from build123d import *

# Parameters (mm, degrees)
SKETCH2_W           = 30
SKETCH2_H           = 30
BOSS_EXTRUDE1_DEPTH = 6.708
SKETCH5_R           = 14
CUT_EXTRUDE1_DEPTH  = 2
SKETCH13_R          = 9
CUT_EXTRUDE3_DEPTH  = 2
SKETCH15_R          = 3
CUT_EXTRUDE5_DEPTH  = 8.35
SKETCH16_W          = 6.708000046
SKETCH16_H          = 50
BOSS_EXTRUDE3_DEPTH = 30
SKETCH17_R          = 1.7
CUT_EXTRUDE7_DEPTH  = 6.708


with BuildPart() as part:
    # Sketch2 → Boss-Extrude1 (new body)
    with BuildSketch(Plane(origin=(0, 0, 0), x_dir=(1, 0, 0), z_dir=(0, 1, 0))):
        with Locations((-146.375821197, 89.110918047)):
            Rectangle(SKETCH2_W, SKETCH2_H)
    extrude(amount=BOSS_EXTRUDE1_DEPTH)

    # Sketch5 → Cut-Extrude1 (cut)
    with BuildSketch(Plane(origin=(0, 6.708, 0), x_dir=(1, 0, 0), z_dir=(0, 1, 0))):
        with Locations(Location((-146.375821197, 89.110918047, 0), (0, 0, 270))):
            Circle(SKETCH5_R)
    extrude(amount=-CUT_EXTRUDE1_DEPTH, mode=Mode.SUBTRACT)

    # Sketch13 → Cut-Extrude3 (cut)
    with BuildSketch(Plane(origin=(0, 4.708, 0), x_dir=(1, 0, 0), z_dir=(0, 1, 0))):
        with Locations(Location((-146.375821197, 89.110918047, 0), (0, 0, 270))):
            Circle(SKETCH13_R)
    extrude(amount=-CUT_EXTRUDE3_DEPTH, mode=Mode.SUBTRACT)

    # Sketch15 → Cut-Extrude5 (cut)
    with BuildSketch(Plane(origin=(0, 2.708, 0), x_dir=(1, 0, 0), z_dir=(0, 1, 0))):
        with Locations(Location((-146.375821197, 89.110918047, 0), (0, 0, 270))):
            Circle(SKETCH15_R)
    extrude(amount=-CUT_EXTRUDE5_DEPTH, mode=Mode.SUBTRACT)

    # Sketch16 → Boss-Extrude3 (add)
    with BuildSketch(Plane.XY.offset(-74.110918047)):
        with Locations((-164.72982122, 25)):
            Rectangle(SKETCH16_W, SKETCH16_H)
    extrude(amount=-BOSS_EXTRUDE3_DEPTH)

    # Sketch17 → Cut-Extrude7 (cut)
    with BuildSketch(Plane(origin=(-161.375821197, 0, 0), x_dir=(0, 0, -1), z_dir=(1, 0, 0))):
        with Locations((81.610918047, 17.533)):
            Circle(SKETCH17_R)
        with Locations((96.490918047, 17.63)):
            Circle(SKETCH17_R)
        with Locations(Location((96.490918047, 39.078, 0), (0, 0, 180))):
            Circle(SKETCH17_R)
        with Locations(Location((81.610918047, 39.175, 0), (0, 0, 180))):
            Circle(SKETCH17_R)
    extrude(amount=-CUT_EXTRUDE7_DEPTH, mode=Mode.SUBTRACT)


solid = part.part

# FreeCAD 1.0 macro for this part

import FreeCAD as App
import Part
import Sketcher
from FreeCAD import Vector

doc = App.newDocument("Part")
params = doc.addObject("Spreadsheet::Sheet", "Params")
for row, (alias, value) in enumerate([
    ("sketch1_width", "30 mm"),
    ("pad1_length", "6.708 mm"),
    ("sketch2_diameter", "28 mm"),
    ("pocket1_length", "2 mm"),
    ("sketch3_diameter", "18 mm"),
    ("pocket2_length", "2 mm"),
    ("sketch4_diameter", "6 mm"),
    ("pocket3_length", "8.35 mm"),
    ("sketch5_height", "50 mm"),
    ("pad2_length", "30 mm"),
    ("sketch6_diameter", "3.4 mm"),
    ("pocket4_length", "6.708 mm"),
], start=1):
    params.set(f"A{row}", alias)
    params.set(f"B{row}", "=" + value)
    params.setAlias(f"B{row}", alias)

body = doc.addObject("PartDesign::Body", "Body")

# Sketch on XZ plane
sketch1 = doc.addObject("Sketcher::SketchObject", "Sketch")
body.addObject(sketch1)
sketch1.AttachmentSupport = (doc.XZ_Plane, [""])
sketch1.MapMode = "FlatFace"
sketch1.addGeometry([
    Part.LineSegment(Vector(-161.375821, -104.110918, 0), Vector(-161.375821, -74.110918, 0)),
    Part.LineSegment(Vector(-161.375821, -74.110918, 0), Vector(-131.375821, -74.110918, 0)),
    Part.LineSegment(Vector(-131.375821, -74.110918, 0), Vector(-131.375821, -104.110918, 0)),
    Part.LineSegment(Vector(-131.375821, -104.110918, 0), Vector(-161.375821, -104.110918, 0)),
], False)
sketch1.addConstraint([
    Sketcher.Constraint("Coincident", 0, 2, 1, 1),
    Sketcher.Constraint("Coincident", 1, 2, 2, 1),
    Sketcher.Constraint("Coincident", 2, 2, 3, 1),
    Sketcher.Constraint("Coincident", 3, 2, 0, 1),
    Sketcher.Constraint("Vertical", 0),
    Sketcher.Constraint("Horizontal", 1),
    Sketcher.Constraint("Vertical", 2),
    Sketcher.Constraint("Horizontal", 3),
    Sketcher.Constraint("Equal", 3, 0),
    Sketcher.Constraint("DistanceX", 1, 1, 1, 2, 30.0),
    Sketcher.Constraint("DistanceX", 0, 2, -1, 1, 161.375821),
    Sketcher.Constraint("DistanceY", 0, 2, -1, 1, 74.110918),
])
sketch1.setExpression("Constraints[9]", "Params.sketch1_width")
pad1 = doc.addObject("PartDesign::Pad", "Pad")
body.addObject(pad1)
pad1.Profile = sketch1
pad1.setExpression("Length", "Params.pad1_length")
pad1.Reversed = True

# Sketch on XZ plane
sketch2 = doc.addObject("Sketcher::SketchObject", "Sketch001")
body.addObject(sketch2)
sketch2.AttachmentSupport = (doc.XZ_Plane, [""])
sketch2.MapMode = "FlatFace"
sketch2.AttachmentOffset = App.Placement(Vector(0, 0, -6.708), App.Rotation())
sketch2.addGeometry(Part.Circle(Vector(-146.375821, -89.110918, 0), Vector(0, 0, 1), 14), False)
sketch2.addConstraint([
    Sketcher.Constraint("Diameter", 0, 28.0),
    Sketcher.Constraint("DistanceX", 0, 3, -1, 1, 146.375821),
    Sketcher.Constraint("DistanceY", 0, 3, -1, 1, 89.110918),
])
sketch2.setExpression("Constraints[0]", "Params.sketch2_diameter")
pocket1 = doc.addObject("PartDesign::Pocket", "Pocket")
body.addObject(pocket1)
pocket1.Profile = sketch2
pocket1.setExpression("Length", "Params.pocket1_length")
pocket1.Reversed = True

# Sketch on XZ plane
sketch3 = doc.addObject("Sketcher::SketchObject", "Sketch002")
body.addObject(sketch3)
sketch3.AttachmentSupport = (doc.XZ_Plane, [""])
sketch3.MapMode = "FlatFace"
sketch3.AttachmentOffset = App.Placement(Vector(0, 0, -4.708), App.Rotation())
sketch3.addGeometry(Part.Circle(Vector(-146.375821, -89.110918, 0), Vector(0, 0, 1), 9), False)
sketch3.addConstraint([
    Sketcher.Constraint("Diameter", 0, 18.0),
    Sketcher.Constraint("DistanceX", 0, 3, -1, 1, 146.375821),
    Sketcher.Constraint("DistanceY", 0, 3, -1, 1, 89.110918),
])
sketch3.setExpression("Constraints[0]", "Params.sketch3_diameter")
pocket2 = doc.addObject("PartDesign::Pocket", "Pocket001")
body.addObject(pocket2)
pocket2.Profile = sketch3
pocket2.setExpression("Length", "Params.pocket2_length")
pocket2.Reversed = True

# Sketch on XZ plane
sketch4 = doc.addObject("Sketcher::SketchObject", "Sketch003")
body.addObject(sketch4)
sketch4.AttachmentSupport = (doc.XZ_Plane, [""])
sketch4.MapMode = "FlatFace"
sketch4.AttachmentOffset = App.Placement(Vector(0, 0, -2.708), App.Rotation())
sketch4.addGeometry(Part.Circle(Vector(-146.375821, -89.110918, 0), Vector(0, 0, 1), 3), False)
sketch4.addConstraint([
    Sketcher.Constraint("Diameter", 0, 6.0),
    Sketcher.Constraint("DistanceX", 0, 3, -1, 1, 146.375821),
    Sketcher.Constraint("DistanceY", 0, 3, -1, 1, 89.110918),
])
sketch4.setExpression("Constraints[0]", "Params.sketch4_diameter")
pocket3 = doc.addObject("PartDesign::Pocket", "Pocket002")
body.addObject(pocket3)
pocket3.Profile = sketch4
pocket3.setExpression("Length", "Params.pocket3_length")
pocket3.Reversed = True

# Sketch on XY plane
sketch5 = doc.addObject("Sketcher::SketchObject", "Sketch004")
body.addObject(sketch5)
sketch5.AttachmentSupport = (doc.XY_Plane, [""])
sketch5.MapMode = "FlatFace"
sketch5.AttachmentOffset = App.Placement(Vector(0, 0, -74.110918), App.Rotation())
sketch5.addGeometry([
    Part.LineSegment(Vector(-168.083821, 50, 0), Vector(-168.083821, 0, 0)),
    Part.LineSegment(Vector(-168.083821, 0, 0), Vector(-161.375821, 0, 0)),
    Part.LineSegment(Vector(-161.375821, 0, 0), Vector(-161.375821, 50, 0)),
    Part.LineSegment(Vector(-161.375821, 50, 0), Vector(-168.083821, 50, 0)),
], False)
sketch5.addConstraint([
    Sketcher.Constraint("Coincident", 0, 2, 1, 1),
    Sketcher.Constraint("Coincident", 1, 2, 2, 1),
    Sketcher.Constraint("Coincident", 2, 2, 3, 1),
    Sketcher.Constraint("Coincident", 3, 2, 0, 1),
    Sketcher.Constraint("Vertical", 0),
    Sketcher.Constraint("Horizontal", 1),
    Sketcher.Constraint("Vertical", 2),
    Sketcher.Constraint("Horizontal", 3),
    Sketcher.Constraint("PointOnObject", 0, 2, -1),
    Sketcher.Constraint("DistanceY", 0, 2, 0, 1, 50.0),
    Sketcher.Constraint("DistanceX", 1, 1, 1, 2, 6.708),
    Sketcher.Constraint("DistanceX", 0, 2, -1, 1, 168.083821),
])
sketch5.setExpression("Constraints[9]", "Params.sketch5_height")
pad2 = doc.addObject("PartDesign::Pad", "Pad001")
body.addObject(pad2)
pad2.Profile = sketch5
pad2.setExpression("Length", "Params.pad2_length")
pad2.Reversed = True

# Sketch on YZ plane
sketch6 = doc.addObject("Sketcher::SketchObject", "Sketch005")
body.addObject(sketch6)
sketch6.AttachmentSupport = (doc.YZ_Plane, [""])
sketch6.MapMode = "FlatFace"
sketch6.AttachmentOffset = App.Placement(Vector(0, 0, -161.375821), App.Rotation())
sketch6.addGeometry([
    Part.Circle(Vector(17.533, -81.610918, 0), Vector(0, 0, 1), 1.7),
    Part.Circle(Vector(17.63, -96.490918, 0), Vector(0, 0, 1), 1.7),
    Part.Circle(Vector(39.078, -96.490918, 0), Vector(0, 0, 1), 1.7),
    Part.Circle(Vector(39.175, -81.610918, 0), Vector(0, 0, 1), 1.7),
], False)
sketch6.addConstraint([
    Sketcher.Constraint("Equal", 0, 1),
    Sketcher.Constraint("Equal", 1, 2),
    Sketcher.Constraint("Equal", 2, 3),
    Sketcher.Constraint("Horizontal", 1, 3, 2, 3),
    Sketcher.Constraint("Horizontal", 0, 3, 3, 3),
    Sketcher.Constraint("Diameter", 0, 3.4),
    Sketcher.Constraint("DistanceX", -1, 1, 1, 3, 17.63),
    Sketcher.Constraint("DistanceY", 1, 3, 0, 3, 14.88),
    Sketcher.Constraint("DistanceX", -1, 1, 0, 3, 17.533),
    Sketcher.Constraint("DistanceX", -1, 1, 2, 3, 39.078),
    Sketcher.Constraint("DistanceX", -1, 1, 3, 3, 39.175),
    Sketcher.Constraint("DistanceY", 0, 3, -1, 1, 81.610918),
])
sketch6.setExpression("Constraints[5]", "Params.sketch6_diameter")
pocket4 = doc.addObject("PartDesign::Pocket", "Pocket003")
body.addObject(pocket4)
pocket4.Profile = sketch6
pocket4.setExpression("Length", "Params.pocket4_length")

doc.recompute()
